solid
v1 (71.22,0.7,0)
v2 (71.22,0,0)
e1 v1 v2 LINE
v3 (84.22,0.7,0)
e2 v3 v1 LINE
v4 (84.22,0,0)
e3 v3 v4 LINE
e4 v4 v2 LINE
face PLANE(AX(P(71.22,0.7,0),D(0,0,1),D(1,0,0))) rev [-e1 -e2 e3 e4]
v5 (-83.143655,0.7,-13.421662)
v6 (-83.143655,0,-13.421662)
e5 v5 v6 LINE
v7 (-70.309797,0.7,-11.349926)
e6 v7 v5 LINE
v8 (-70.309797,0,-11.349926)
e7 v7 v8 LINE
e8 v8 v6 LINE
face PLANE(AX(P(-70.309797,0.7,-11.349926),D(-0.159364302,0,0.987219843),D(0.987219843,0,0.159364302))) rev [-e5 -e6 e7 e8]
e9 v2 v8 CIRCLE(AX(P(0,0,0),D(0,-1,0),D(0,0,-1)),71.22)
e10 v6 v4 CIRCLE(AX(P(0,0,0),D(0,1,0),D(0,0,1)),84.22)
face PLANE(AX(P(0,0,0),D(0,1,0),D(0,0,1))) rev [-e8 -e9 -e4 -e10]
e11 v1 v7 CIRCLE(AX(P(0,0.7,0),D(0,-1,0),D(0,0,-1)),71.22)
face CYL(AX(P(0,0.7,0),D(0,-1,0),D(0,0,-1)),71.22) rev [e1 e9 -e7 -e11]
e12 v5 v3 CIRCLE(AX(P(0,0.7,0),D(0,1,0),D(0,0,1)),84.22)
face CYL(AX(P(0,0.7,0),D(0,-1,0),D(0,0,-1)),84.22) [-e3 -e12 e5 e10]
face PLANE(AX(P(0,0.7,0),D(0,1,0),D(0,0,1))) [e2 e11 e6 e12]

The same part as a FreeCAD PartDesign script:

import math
import FreeCAD as App
import Part
import Sketcher
Q = App.Units.Quantity

doc = App.newDocument("Part")
body = doc.addObject("PartDesign::Body", "Body")

sketch1 = body.newObject("Sketcher::SketchObject", "Sketch")
sketch1.AttachmentSupport = (doc.getObject("XZ_Plane"), [""])
sketch1.MapMode = "FlatFace"
sketch1.addGeometry(Part.LineSegment(App.Vector(-70, -11, 0), App.Vector(-83, -13, 0)), False)
sketch1.addGeometry(Part.ArcOfCircle(Part.Circle(App.Vector(0, 0, 0), App.Vector(0, 0, 1), 84), math.radians(0), math.radians(189)), False)
sketch1.addGeometry(Part.LineSegment(App.Vector(84, 0, 0), App.Vector(71, 0, 0)), False)
sketch1.addGeometry(Part.ArcOfCircle(Part.Circle(App.Vector(0, 0, 0), App.Vector(0, 0, 1), 71), math.radians(0), math.radians(189)), False)
sketch1.addConstraint(Sketcher.Constraint("Coincident", 0, 2, 1, 2))
sketch1.addConstraint(Sketcher.Constraint("Coincident", 1, 1, 2, 1))
sketch1.addConstraint(Sketcher.Constraint("Coincident", 2, 2, 3, 1))
sketch1.addConstraint(Sketcher.Constraint("Coincident", 3, 2, 0, 1))
sketch1.addConstraint(Sketcher.Constraint("Horizontal", 2))
sketch1.addConstraint(Sketcher.Constraint("Coincident", 1, 3, -1, 1))
sketch1.addConstraint(Sketcher.Constraint("Coincident", 3, 3, -1, 1))
sketch1.addConstraint(Sketcher.Constraint("PointOnObject", 1, 1, -1))
sketch1.addConstraint(Sketcher.Constraint("DistanceX", 2, 2, 2, 1, Q("13 mm")))
sketch1.addConstraint(Sketcher.Constraint("Radius", 1, Q("84.22 mm")))
sketch1.addConstraint(Sketcher.Constraint("Angle", 0, Q("-170.83 deg")))
sketch1.addConstraint(Sketcher.Constraint("DistanceY", 0, 2, -1, 1, Q("13.421662 mm")))
pad1 = body.newObject("PartDesign::Pad", "Pad")
pad1.Profile = sketch1
pad1.Length = 0.7
pad1.Reversed = True

doc.recompute()
